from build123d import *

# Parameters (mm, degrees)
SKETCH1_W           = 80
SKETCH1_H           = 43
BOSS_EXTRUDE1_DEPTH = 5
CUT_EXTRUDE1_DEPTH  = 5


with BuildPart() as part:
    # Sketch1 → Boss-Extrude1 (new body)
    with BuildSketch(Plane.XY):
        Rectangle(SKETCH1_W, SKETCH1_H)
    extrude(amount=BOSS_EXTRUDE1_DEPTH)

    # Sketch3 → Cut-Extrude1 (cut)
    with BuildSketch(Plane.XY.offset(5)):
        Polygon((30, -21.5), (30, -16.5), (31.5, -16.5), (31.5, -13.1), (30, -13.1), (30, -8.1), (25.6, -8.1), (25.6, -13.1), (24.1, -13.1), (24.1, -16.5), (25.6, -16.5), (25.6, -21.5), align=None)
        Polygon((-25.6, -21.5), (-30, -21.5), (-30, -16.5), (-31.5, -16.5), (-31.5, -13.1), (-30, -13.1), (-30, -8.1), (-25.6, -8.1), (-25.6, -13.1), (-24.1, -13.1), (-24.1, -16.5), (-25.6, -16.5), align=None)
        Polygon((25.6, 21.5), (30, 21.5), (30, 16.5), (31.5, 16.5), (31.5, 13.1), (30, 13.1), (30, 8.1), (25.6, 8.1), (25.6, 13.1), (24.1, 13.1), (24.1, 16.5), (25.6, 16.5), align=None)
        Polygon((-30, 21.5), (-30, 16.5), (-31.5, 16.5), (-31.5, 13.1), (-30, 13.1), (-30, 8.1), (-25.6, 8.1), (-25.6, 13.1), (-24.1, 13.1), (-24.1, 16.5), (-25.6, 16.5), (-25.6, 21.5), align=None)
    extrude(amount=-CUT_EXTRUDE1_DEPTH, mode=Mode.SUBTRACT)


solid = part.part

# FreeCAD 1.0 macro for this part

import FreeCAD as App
import Part
import Sketcher

doc = App.newDocument("Part")
body = doc.addObject("PartDesign::Body", "Body")

sketch1 = doc.addObject("Sketcher::SketchObject", "Sketch")
body.addObject(sketch1)
sketch1.AttachmentSupport = (doc.XY_Plane, [""])
sketch1.MapMode = "FlatFace"
sketch1.addGeometry([
    Part.LineSegment(App.Vector(-40, 22, 0), App.Vector(-40, -22, 0)),
    Part.LineSegment(App.Vector(-40, -22, 0), App.Vector(40, -22, 0)),
    Part.LineSegment(App.Vector(40, -22, 0), App.Vector(40, 22, 0)),
    Part.LineSegment(App.Vector(40, 22, 0), App.Vector(-40, 22, 0)),
], False)
sketch1.addConstraint([
    Sketcher.Constraint("Coincident", 0, 2, 1, 1),
    Sketcher.Constraint("Coincident", 1, 2, 2, 1),
    Sketcher.Constraint("Coincident", 2, 2, 3, 1),
    Sketcher.Constraint("Coincident", 3, 2, 0, 1),
    Sketcher.Constraint("Vertical", 0),
    Sketcher.Constraint("Horizontal", 1),
    Sketcher.Constraint("Vertical", 2),
    Sketcher.Constraint("Horizontal", 3),
    Sketcher.Constraint("Symmetric", 0, 2, 2, 2, -1, 1),
    Sketcher.Constraint("DistanceX", 1, 1, 1, 2, 80.0),
    Sketcher.Constraint("DistanceY", 0, 2, 0, 1, 43.0),
])
pad1 = doc.addObject("PartDesign::Pad", "Pad")
body.addObject(pad1)
pad1.Profile = sketch1
pad1.Length = 5

sketch2 = doc.addObject("Sketcher::SketchObject", "Sketch001")
body.addObject(sketch2)
sketch2.AttachmentSupport = (doc.XY_Plane, [""])
sketch2.MapMode = "FlatFace"
sketch2.AttachmentOffset = App.Placement(App.Vector(0, 0, 5), App.Rotation())
sketch2.addGeometry([
    Part.LineSegment(App.Vector(30, -21.5, 0), App.Vector(30, -16.5, 0)),
    Part.LineSegment(App.Vector(30, -16.5, 0), App.Vector(31.5, -16.5, 0)),
    Part.LineSegment(App.Vector(31.5, -16.5, 0), App.Vector(31.5, -13.1, 0)),
    Part.LineSegment(App.Vector(31.5, -13.1, 0), App.Vector(30, -13.1, 0)),
    Part.LineSegment(App.Vector(30, -13.1, 0), App.Vector(30, -8.1, 0)),
    Part.LineSegment(App.Vector(30, -8.1, 0), App.Vector(25.6, -8.1, 0)),
    Part.LineSegment(App.Vector(25.6, -8.1, 0), App.Vector(25.6, -13.1, 0)),
    Part.LineSegment(App.Vector(25.6, -13.1, 0), App.Vector(24.1, -13.1, 0)),
    Part.LineSegment(App.Vector(24.1, -13.1, 0), App.Vector(24.1, -16.5, 0)),
    Part.LineSegment(App.Vector(24.1, -16.5, 0), App.Vector(25.6, -16.5, 0)),
    Part.LineSegment(App.Vector(25.6, -16.5, 0), App.Vector(25.6, -21.5, 0)),
    Part.LineSegment(App.Vector(25.6, -21.5, 0), App.Vector(30, -21.5, 0)),
    Part.LineSegment(App.Vector(-30, -21.5, 0), App.Vector(-25.6, -21.5, 0)),
    Part.LineSegment(App.Vector(-25.6, -21.5, 0), App.Vector(-25.6, -16.5, 0)),
    Part.LineSegment(App.Vector(-25.6, -16.5, 0), App.Vector(-24.1, -16.5, 0)),
    Part.LineSegment(App.Vector(-24.1, -16.5, 0), App.Vector(-24.1, -13.1, 0)),
    Part.LineSegment(App.Vector(-24.1, -13.1, 0), App.Vector(-25.6, -13.1, 0)),
    Part.LineSegment(App.Vector(-25.6, -13.1, 0), App.Vector(-25.6, -8.1, 0)),
    Part.LineSegment(App.Vector(-25.6, -8.1, 0), App.Vector(-30, -8.1, 0)),
    Part.LineSegment(App.Vector(-30, -8.1, 0), App.Vector(-30, -13.1, 0)),
    Part.LineSegment(App.Vector(-30, -13.1, 0), App.Vector(-31.5, -13.1, 0)),
    Part.LineSegment(App.Vector(-31.5, -13.1, 0), App.Vector(-31.5, -16.5, 0)),
    Part.LineSegment(App.Vector(-31.5, -16.5, 0), App.Vector(-30, -16.5, 0)),
    Part.LineSegment(App.Vector(-30, -16.5, 0), App.Vector(-30, -21.5, 0)),
    Part.LineSegment(App.Vector(30, 21.5, 0), App.Vector(25.6, 21.5, 0)),
    Part.LineSegment(App.Vector(25.6, 21.5, 0), App.Vector(25.6, 16.5, 0)),
    Part.LineSegment(App.Vector(25.6, 16.5, 0), App.Vector(24.1, 16.5, 0)),
    Part.LineSegment(App.Vector(24.1, 16.5, 0), App.Vector(24.1, 13.1, 0)),
    Part.LineSegment(App.Vector(24.1, 13.1, 0), App.Vector(25.6, 13.1, 0)),
    Part.LineSegment(App.Vector(25.6, 13.1, 0), App.Vector(25.6, 8.1, 0)),
    Part.LineSegment(App.Vector(25.6, 8.1, 0), App.Vector(30, 8.1, 0)),
    Part.LineSegment(App.Vector(30, 8.1, 0), App.Vector(30, 13.1, 0)),
    Part.LineSegment(App.Vector(30, 13.1, 0), App.Vector(31.5, 13.1, 0)),
    Part.LineSegment(App.Vector(31.5, 13.1, 0), App.Vector(31.5, 16.5, 0)),
    Part.LineSegment(App.Vector(31.5, 16.5, 0), App.Vector(30, 16.5, 0)),
    Part.LineSegment(App.Vector(30, 16.5, 0), App.Vector(30, 21.5, 0)),
    Part.LineSegment(App.Vector(-30, 21.5, 0), App.Vector(-30, 16.5, 0)),
    Part.LineSegment(App.Vector(-30, 16.5, 0), App.Vector(-31.5, 16.5, 0)),
    Part.LineSegment(App.Vector(-31.5, 16.5, 0), App.Vector(-31.5, 13.1, 0)),
    Part.LineSegment(App.Vector(-31.5, 13.1, 0), App.Vector(-30, 13.1, 0)),
    Part.LineSegment(App.Vector(-30, 13.1, 0), App.Vector(-30, 8.1, 0)),
    Part.LineSegment(App.Vector(-30, 8.1, 0), App.Vector(-25.6, 8.1, 0)),
    Part.LineSegment(App.Vector(-25.6, 8.1, 0), App.Vector(-25.6, 13.1, 0)),
    Part.LineSegment(App.Vector(-25.6, 13.1, 0), App.Vector(-24.1, 13.1, 0)),
    Part.LineSegment(App.Vector(-24.1, 13.1, 0), App.Vector(-24.1, 16.5, 0)),
    Part.LineSegment(App.Vector(-24.1, 16.5, 0), App.Vector(-25.6, 16.5, 0)),
    Part.LineSegment(App.Vector(-25.6, 16.5, 0), App.Vector(-25.6, 21.5, 0)),
    Part.LineSegment(App.Vector(-25.6, 21.5, 0), App.Vector(-30, 21.5, 0)),
], False)
sketch2.addConstraint([
    Sketcher.Constraint("Coincident", 0, 2, 1, 1),
    Sketcher.Constraint("Coincident", 1, 2, 2, 1),
    Sketcher.Constraint("Coincident", 2, 2, 3, 1),
    Sketcher.Constraint("Coincident", 3, 2, 4, 1),
    Sketcher.Constraint("Coincident", 4, 2, 5, 1),
    Sketcher.Constraint("Coincident", 5, 2, 6, 1),
    Sketcher.Constraint("Coincident", 6, 2, 7, 1),
    Sketcher.Constraint("Coincident", 7, 2, 8, 1),
    Sketcher.Constraint("Coincident", 8, 2, 9, 1),
    Sketcher.Constraint("Coincident", 9, 2, 10, 1),
    Sketcher.Constraint("Coincident", 10, 2, 11, 1),
    Sketcher.Constraint("Coincident", 11, 2, 0, 1),
    Sketcher.Constraint("Coincident", 12, 2, 13, 1),
    Sketcher.Constraint("Coincident", 13, 2, 14, 1),
    Sketcher.Constraint("Coincident", 14, 2, 15, 1),
    Sketcher.Constraint("Coincident", 15, 2, 16, 1),
    Sketcher.Constraint("Coincident", 16, 2, 17, 1),
    Sketcher.Constraint("Coincident", 17, 2, 18, 1),
    Sketcher.Constraint("Coincident", 18, 2, 19, 1),
    Sketcher.Constraint("Coincident", 19, 2, 20, 1),
    Sketcher.Constraint("Coincident", 20, 2, 21, 1),
    Sketcher.Constraint("Coincident", 21, 2, 22, 1),
    Sketcher.Constraint("Coincident", 22, 2, 23, 1),
    Sketcher.Constraint("Coincident", 23, 2, 12, 1),
    Sketcher.Constraint("Coincident", 24, 2, 25, 1),
    Sketcher.Constraint("Coincident", 25, 2, 26, 1),
    Sketcher.Constraint("Coincident", 26, 2, 27, 1),
    Sketcher.Constraint("Coincident", 27, 2, 28, 1),
    Sketcher.Constraint("Coincident", 28, 2, 29, 1),
    Sketcher.Constraint("Coincident", 29, 2, 30, 1),
    Sketcher.Constraint("Coincident", 30, 2, 31, 1),
    Sketcher.Constraint("Coincident", 31, 2, 32, 1),
    Sketcher.Constraint("Coincident", 32, 2, 33, 1),
    Sketcher.Constraint("Coincident", 33, 2, 34, 1),
    Sketcher.Constraint("Coincident", 34, 2, 35, 1),
    Sketcher.Constraint("Coincident", 35, 2, 24, 1),
    Sketcher.Constraint("Coincident", 36, 2, 37, 1),
    Sketcher.Constraint("Coincident", 37, 2, 38, 1),
    Sketcher.Constraint("Coincident", 38, 2, 39, 1),
    Sketcher.Constraint("Coincident", 39, 2, 40, 1),
    Sketcher.Constraint("Coincident", 40, 2, 41, 1),
    Sketcher.Constraint("Coincident", 41, 2, 42, 1),
    Sketcher.Constraint("Coincident", 42, 2, 43, 1),
    Sketcher.Constraint("Coincident", 43, 2, 44, 1),
    Sketcher.Constraint("Coincident", 44, 2, 45, 1),
    Sketcher.Constraint("Coincident", 45, 2, 46, 1),
    Sketcher.Constraint("Coincident", 46, 2, 47, 1),
    Sketcher.Constraint("Coincident", 47, 2, 36, 1),
    Sketcher.Constraint("Vertical", 0),
    Sketcher.Constraint("Horizontal", 1),
    Sketcher.Constraint("Vertical", 2),
    Sketcher.Constraint("Horizontal", 3),
    Sketcher.Constraint("Vertical", 4),
    Sketcher.Constraint("Horizontal", 5),
    Sketcher.Constraint("Vertical", 6),
    Sketcher.Constraint("Horizontal", 7),
    Sketcher.Constraint("Vertical", 8),
    Sketcher.Constraint("Horizontal", 9),
    Sketcher.Constraint("Vertical", 10),
    Sketcher.Constraint("Horizontal", 11),
    Sketcher.Constraint("Horizontal", 12),
    Sketcher.Constraint("Vertical", 13),
    Sketcher.Constraint("Horizontal", 14),
    Sketcher.Constraint("Vertical", 15),
    Sketcher.Constraint("Horizontal", 16),
    Sketcher.Constraint("Vertical", 17),
    Sketcher.Constraint("Horizontal", 18),
    Sketcher.Constraint("Vertical", 19),
    Sketcher.Constraint("Horizontal", 20),
    Sketcher.Constraint("Vertical", 21),
    Sketcher.Constraint("Horizontal", 22),
    Sketcher.Constraint("Vertical", 23),
    Sketcher.Constraint("Horizontal", 24),
    Sketcher.Constraint("Vertical", 25),
    Sketcher.Constraint("Horizontal", 26),
    Sketcher.Constraint("Vertical", 27),
    Sketcher.Constraint("Horizontal", 28),
    Sketcher.Constraint("Vertical", 29),
    Sketcher.Constraint("Horizontal", 30),
    Sketcher.Constraint("Vertical", 31),
    Sketcher.Constraint("Horizontal", 32),
    Sketcher.Constraint("Vertical", 33),
    Sketcher.Constraint("Horizontal", 34),
    Sketcher.Constraint("Vertical", 35),
    Sketcher.Constraint("Vertical", 36),
    Sketcher.Constraint("Horizontal", 37),
    Sketcher.Constraint("Vertical", 38),
    Sketcher.Constraint("Horizontal", 39),
    Sketcher.Constraint("Vertical", 40),
    Sketcher.Constraint("Horizontal", 41),
    Sketcher.Constraint("Vertical", 42),
    Sketcher.Constraint("Horizontal", 43),
    Sketcher.Constraint("Vertical", 44),
    Sketcher.Constraint("Horizontal", 45),
    Sketcher.Constraint("Vertical", 46),
    Sketcher.Constraint("Horizontal", 47),
    Sketcher.Constraint("Symmetric", 12, 2, 24, 2, -1, 1),
    Sketcher.Constraint("Symmetric", 14, 2, 26, 2, -1, 1),
    Sketcher.Constraint("Symmetric", 16, 2, 28, 2, -1, 1),
    Sketcher.Constraint("Symmetric", 18, 2, 30, 2, -1, 1),
    Sketcher.Constraint("Symmetric", 20, 2, 32, 2, -1, 1),
    Sketcher.Constraint("Symmetric", 22, 2, 34, 2, -1, 1),
    Sketcher.Constraint("Symmetric", 0, 2, 36, 2, -1, 1),
    Sketcher.Constraint("Symmetric", 2, 2, 38, 2, -1, 1),
    Sketcher.Constraint("Symmetric", 4, 2, 40, 2, -1, 1),
    Sketcher.Constraint("Symmetric", 6, 2, 42, 2, -1, 1),
    Sketcher.Constraint("Symmetric", 8, 2, 44, 2, -1, 1),
    Sketcher.Constraint("Symmetric", 10, 2, 46, 2, -1, 1),
    Sketcher.Constraint("Symmetric", 10, 2, 12, 2, -2),
    Sketcher.Constraint("Symmetric", 8, 2, 14, 2, -2),
    Sketcher.Constraint("Symmetric", 6, 2, 16, 2, -2),
    Sketcher.Constraint("Symmetric", 4, 2, 18, 2, -2),
    Sketcher.Constraint("Symmetric", 2, 2, 20, 2, -2),
    Sketcher.Constraint("Symmetric", 0, 2, 22, 2, -2),
    Sketcher.Constraint("Horizontal", 3, 2, 6, 2),
    Sketcher.Constraint("Horizontal", 1, 2, 8, 2),
    Sketcher.Constraint("Vertical", 0, 2, 3, 2),
    Sketcher.Constraint("Vertical", 6, 2, 9, 2),
    Sketcher.Constraint("Equal", 3, 7),
    Sketcher.Constraint("Equal", 0, 4),
    Sketcher.Constraint("DistanceY", 0, 1, 0, 2, 5.0),
    Sketcher.Constraint("DistanceX", 1, 1, 1, 2, 1.5),
    Sketcher.Constraint("DistanceX", 5, 2, 5, 1, 4.4),
    Sketcher.Constraint("DistanceY", 2, 1, 2, 2, 3.4),
    Sketcher.Constraint("DistanceX", -1, 1, 0, 2, 30.0),
    Sketcher.Constraint("DistanceY", 0, 2, -1, 1, 16.5),
])
pocket1 = doc.addObject("PartDesign::Pocket", "Pocket")
body.addObject(pocket1)
pocket1.Profile = sketch2
pocket1.Length = 5

doc.recompute()
